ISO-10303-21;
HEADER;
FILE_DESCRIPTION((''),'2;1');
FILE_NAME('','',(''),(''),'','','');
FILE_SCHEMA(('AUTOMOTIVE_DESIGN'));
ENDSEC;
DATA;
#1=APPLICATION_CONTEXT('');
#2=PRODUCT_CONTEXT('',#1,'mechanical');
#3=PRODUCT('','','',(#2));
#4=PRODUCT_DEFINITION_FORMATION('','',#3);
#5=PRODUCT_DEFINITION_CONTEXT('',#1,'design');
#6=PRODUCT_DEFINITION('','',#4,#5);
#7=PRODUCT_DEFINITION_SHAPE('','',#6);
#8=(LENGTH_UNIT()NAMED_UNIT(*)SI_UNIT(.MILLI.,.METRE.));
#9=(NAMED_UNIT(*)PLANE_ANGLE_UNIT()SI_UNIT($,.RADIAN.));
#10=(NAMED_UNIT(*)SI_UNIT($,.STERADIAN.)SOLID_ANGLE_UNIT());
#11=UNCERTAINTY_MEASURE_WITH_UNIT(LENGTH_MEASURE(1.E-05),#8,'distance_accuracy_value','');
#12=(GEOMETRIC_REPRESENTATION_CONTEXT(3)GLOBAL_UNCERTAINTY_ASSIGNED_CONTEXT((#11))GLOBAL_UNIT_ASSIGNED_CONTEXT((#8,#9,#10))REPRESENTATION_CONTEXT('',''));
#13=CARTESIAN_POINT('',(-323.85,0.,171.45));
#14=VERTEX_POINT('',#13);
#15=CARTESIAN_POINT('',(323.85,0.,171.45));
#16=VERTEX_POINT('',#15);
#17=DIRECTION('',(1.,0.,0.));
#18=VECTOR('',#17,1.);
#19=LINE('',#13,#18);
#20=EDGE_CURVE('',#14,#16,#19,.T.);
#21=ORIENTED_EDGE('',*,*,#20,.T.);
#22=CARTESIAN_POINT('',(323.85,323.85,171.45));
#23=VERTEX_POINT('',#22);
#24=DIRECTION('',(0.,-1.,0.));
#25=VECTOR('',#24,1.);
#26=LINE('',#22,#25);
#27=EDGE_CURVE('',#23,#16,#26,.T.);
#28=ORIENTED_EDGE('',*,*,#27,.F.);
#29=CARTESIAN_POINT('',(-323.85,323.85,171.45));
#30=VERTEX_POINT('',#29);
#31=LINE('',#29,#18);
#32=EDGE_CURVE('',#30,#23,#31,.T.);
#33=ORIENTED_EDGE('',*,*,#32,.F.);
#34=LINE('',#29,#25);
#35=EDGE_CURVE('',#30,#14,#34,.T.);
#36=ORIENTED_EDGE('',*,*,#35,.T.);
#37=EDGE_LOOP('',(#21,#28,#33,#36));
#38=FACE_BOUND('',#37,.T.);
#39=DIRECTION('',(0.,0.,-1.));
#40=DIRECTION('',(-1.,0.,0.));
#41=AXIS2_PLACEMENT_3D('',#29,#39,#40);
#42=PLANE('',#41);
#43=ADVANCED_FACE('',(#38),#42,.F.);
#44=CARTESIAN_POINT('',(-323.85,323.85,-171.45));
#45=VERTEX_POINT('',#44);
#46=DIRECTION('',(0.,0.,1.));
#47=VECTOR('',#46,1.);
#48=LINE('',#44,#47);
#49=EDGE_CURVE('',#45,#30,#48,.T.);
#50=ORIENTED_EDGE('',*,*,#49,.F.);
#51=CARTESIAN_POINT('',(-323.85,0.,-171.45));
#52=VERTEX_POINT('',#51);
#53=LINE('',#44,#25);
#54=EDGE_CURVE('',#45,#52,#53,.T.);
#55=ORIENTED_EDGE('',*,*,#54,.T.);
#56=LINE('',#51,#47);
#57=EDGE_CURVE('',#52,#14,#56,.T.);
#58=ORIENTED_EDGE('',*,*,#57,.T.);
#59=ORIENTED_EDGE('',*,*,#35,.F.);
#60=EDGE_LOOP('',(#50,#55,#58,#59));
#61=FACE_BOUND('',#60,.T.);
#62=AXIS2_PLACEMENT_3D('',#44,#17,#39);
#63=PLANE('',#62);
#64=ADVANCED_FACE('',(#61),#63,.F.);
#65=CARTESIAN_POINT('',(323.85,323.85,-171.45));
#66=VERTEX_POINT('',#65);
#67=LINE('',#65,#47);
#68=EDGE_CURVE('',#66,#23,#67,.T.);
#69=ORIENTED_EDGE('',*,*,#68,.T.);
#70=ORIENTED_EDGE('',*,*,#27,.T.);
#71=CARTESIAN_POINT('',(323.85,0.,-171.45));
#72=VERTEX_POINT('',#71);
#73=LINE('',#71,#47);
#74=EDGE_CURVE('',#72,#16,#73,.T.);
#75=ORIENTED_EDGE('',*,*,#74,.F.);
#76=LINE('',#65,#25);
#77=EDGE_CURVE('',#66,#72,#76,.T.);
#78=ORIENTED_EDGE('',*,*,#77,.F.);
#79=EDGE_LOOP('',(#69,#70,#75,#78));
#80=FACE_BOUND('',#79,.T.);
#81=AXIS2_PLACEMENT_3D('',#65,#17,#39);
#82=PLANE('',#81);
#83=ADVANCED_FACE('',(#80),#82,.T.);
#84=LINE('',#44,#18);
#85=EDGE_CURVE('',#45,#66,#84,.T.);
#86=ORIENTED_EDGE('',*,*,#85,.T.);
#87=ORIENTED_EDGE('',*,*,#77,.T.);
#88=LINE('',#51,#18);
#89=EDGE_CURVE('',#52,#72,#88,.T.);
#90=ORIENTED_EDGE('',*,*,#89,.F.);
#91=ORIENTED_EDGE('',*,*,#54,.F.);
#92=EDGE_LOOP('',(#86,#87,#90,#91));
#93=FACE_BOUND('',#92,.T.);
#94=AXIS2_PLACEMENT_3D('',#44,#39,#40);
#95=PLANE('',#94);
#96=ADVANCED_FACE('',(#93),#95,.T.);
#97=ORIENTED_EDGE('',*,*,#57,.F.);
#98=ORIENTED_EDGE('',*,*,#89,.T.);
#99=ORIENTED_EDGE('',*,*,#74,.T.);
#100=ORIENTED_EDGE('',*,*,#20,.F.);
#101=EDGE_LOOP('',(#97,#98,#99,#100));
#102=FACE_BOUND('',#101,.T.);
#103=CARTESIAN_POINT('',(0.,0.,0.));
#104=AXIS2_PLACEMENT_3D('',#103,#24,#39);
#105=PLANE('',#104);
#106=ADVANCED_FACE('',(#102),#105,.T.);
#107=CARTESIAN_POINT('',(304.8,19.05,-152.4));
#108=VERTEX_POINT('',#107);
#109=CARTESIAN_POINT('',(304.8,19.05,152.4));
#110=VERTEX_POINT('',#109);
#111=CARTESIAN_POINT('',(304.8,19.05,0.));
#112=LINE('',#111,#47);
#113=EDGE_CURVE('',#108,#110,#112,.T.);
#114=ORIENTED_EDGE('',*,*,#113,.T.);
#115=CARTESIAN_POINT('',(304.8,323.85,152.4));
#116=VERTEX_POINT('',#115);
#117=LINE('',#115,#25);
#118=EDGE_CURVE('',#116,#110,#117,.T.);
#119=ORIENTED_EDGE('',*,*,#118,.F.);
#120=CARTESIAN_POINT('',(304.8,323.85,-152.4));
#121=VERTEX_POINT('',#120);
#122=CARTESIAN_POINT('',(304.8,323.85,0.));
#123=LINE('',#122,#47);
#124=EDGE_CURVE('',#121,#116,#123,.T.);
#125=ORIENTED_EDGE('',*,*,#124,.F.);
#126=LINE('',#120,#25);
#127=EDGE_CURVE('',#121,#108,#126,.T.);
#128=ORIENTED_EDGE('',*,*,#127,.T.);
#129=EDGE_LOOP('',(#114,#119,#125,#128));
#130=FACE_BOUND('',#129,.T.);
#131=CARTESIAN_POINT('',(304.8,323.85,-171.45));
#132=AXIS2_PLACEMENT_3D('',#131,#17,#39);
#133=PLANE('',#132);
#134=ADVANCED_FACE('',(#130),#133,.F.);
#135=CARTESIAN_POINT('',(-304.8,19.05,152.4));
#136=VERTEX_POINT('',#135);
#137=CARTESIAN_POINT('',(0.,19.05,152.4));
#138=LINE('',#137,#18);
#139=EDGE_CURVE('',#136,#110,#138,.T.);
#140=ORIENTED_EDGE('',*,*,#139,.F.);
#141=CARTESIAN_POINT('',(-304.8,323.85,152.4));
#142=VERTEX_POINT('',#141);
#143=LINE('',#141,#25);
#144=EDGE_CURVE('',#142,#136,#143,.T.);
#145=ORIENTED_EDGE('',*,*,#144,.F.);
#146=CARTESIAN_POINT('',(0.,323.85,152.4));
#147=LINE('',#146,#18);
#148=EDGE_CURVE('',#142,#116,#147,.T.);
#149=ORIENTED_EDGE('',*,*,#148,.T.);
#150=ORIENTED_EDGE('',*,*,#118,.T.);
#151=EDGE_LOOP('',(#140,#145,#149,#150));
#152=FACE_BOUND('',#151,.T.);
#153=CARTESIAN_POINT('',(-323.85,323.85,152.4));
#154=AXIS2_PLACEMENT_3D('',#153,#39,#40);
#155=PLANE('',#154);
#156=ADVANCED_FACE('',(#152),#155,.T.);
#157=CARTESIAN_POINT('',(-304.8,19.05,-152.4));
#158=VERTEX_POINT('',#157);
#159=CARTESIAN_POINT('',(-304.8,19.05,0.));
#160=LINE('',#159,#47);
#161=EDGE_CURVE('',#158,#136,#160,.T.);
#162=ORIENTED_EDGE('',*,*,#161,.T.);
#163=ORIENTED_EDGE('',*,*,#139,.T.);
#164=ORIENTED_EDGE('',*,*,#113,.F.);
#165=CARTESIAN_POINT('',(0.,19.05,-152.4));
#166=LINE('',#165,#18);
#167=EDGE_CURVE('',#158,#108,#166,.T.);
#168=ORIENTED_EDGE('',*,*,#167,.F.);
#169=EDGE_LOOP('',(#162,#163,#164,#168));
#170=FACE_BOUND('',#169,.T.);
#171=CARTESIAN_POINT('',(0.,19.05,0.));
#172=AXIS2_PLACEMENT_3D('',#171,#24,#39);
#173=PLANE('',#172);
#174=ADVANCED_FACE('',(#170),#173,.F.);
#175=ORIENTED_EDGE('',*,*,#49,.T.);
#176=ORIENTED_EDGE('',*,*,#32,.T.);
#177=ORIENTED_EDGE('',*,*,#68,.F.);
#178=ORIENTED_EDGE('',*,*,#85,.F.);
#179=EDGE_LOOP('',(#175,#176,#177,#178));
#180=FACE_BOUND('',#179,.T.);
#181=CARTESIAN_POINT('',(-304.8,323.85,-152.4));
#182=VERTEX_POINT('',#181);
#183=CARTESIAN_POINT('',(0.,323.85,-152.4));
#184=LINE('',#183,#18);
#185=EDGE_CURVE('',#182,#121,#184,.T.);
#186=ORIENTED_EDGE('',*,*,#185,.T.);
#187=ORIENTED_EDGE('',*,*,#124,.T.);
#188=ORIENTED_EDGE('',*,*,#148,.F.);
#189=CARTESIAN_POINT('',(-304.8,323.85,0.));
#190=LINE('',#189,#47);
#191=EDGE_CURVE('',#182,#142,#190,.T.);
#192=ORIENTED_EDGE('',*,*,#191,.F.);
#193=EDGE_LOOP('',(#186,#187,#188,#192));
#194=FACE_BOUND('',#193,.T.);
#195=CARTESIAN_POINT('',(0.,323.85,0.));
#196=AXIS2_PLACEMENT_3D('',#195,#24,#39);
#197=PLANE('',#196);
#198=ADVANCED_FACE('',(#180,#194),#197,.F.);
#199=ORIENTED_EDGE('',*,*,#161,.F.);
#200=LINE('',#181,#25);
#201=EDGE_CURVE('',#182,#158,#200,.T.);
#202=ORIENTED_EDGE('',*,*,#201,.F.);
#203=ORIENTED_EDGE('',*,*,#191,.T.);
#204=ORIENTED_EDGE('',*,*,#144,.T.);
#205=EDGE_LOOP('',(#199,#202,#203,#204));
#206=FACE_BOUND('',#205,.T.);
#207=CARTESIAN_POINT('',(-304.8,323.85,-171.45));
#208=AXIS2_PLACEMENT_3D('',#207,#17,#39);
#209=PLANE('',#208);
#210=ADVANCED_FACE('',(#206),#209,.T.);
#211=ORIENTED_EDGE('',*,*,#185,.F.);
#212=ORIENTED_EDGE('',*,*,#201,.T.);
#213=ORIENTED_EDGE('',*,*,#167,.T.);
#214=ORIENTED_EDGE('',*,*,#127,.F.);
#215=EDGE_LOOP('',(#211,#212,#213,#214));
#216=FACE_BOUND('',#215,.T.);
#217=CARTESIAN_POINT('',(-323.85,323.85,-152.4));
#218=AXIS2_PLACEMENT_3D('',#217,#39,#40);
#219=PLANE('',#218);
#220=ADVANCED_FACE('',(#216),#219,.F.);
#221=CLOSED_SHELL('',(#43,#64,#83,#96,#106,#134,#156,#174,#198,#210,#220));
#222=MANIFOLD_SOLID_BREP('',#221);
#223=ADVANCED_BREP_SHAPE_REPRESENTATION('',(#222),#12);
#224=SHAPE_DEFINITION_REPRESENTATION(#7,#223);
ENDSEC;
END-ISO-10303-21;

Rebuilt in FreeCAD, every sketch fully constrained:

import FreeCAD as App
import Part
import Sketcher
from FreeCAD import Vector
Q = App.Units.Quantity


def faces_at(feature, points):
    """Names of the faces that lie closest to the given points."""
    faces = feature.Shape.Faces
    near = lambda p: min(range(len(faces)), key=lambda i: faces[i].distToShape(Part.Vertex(*p))[0])
    return sorted({f"Face{near(p) + 1}" for p in points})

doc = App.newDocument("Part")
body = doc.addObject("PartDesign::Body", "Body")

# Sketch on XZ plane
sketch1 = body.newObject("Sketcher::SketchObject", "Sketch")
sketch1.AttachmentSupport = (doc.getObject("XZ_Plane"), [""])
sketch1.MapMode = "FlatFace"
sketch1.addGeometry([
    Part.LineSegment(Vector(-323.85, -171.45, 0), Vector(-323.85, 171.45, 0)),
    Part.LineSegment(Vector(-323.85, 171.45, 0), Vector(323.85, 171.45, 0)),
    Part.LineSegment(Vector(323.85, 171.45, 0), Vector(323.85, -171.45, 0)),
    Part.LineSegment(Vector(323.85, -171.45, 0), Vector(-323.85, -171.45, 0)),
], False)
sketch1.addConstraint([
    Sketcher.Constraint("Coincident", 0, 2, 1, 1),
    Sketcher.Constraint("Coincident", 1, 2, 2, 1),
    Sketcher.Constraint("Coincident", 2, 2, 3, 1),
    Sketcher.Constraint("Coincident", 3, 2, 0, 1),
    Sketcher.Constraint("Vertical", 0),
    Sketcher.Constraint("Horizontal", 1),
    Sketcher.Constraint("Vertical", 2),
    Sketcher.Constraint("Horizontal", 3),
    Sketcher.Constraint("Symmetric", 0, 2, 2, 2, -1, 1),
    Sketcher.Constraint("DistanceX", 1, 1, 1, 2, Q("25.5 in")),
    Sketcher.Constraint("DistanceY", 0, 1, 0, 2, Q("13.5 in")),
])
pad1 = body.newObject("PartDesign::Pad", "Pad")
pad1.Profile = sketch1
pad1.Length = Q("12.75 in")
pad1.Reversed = True
doc.recompute()

thickness = body.newObject("PartDesign::Thickness", "Thickness")
thickness.Base = (pad1, faces_at(pad1, [(0, 323.85, 0)]))
thickness.Value = Q("0.75 in")
thickness.Reversed = True
thickness.Join = "Intersection"

doc.recompute()
